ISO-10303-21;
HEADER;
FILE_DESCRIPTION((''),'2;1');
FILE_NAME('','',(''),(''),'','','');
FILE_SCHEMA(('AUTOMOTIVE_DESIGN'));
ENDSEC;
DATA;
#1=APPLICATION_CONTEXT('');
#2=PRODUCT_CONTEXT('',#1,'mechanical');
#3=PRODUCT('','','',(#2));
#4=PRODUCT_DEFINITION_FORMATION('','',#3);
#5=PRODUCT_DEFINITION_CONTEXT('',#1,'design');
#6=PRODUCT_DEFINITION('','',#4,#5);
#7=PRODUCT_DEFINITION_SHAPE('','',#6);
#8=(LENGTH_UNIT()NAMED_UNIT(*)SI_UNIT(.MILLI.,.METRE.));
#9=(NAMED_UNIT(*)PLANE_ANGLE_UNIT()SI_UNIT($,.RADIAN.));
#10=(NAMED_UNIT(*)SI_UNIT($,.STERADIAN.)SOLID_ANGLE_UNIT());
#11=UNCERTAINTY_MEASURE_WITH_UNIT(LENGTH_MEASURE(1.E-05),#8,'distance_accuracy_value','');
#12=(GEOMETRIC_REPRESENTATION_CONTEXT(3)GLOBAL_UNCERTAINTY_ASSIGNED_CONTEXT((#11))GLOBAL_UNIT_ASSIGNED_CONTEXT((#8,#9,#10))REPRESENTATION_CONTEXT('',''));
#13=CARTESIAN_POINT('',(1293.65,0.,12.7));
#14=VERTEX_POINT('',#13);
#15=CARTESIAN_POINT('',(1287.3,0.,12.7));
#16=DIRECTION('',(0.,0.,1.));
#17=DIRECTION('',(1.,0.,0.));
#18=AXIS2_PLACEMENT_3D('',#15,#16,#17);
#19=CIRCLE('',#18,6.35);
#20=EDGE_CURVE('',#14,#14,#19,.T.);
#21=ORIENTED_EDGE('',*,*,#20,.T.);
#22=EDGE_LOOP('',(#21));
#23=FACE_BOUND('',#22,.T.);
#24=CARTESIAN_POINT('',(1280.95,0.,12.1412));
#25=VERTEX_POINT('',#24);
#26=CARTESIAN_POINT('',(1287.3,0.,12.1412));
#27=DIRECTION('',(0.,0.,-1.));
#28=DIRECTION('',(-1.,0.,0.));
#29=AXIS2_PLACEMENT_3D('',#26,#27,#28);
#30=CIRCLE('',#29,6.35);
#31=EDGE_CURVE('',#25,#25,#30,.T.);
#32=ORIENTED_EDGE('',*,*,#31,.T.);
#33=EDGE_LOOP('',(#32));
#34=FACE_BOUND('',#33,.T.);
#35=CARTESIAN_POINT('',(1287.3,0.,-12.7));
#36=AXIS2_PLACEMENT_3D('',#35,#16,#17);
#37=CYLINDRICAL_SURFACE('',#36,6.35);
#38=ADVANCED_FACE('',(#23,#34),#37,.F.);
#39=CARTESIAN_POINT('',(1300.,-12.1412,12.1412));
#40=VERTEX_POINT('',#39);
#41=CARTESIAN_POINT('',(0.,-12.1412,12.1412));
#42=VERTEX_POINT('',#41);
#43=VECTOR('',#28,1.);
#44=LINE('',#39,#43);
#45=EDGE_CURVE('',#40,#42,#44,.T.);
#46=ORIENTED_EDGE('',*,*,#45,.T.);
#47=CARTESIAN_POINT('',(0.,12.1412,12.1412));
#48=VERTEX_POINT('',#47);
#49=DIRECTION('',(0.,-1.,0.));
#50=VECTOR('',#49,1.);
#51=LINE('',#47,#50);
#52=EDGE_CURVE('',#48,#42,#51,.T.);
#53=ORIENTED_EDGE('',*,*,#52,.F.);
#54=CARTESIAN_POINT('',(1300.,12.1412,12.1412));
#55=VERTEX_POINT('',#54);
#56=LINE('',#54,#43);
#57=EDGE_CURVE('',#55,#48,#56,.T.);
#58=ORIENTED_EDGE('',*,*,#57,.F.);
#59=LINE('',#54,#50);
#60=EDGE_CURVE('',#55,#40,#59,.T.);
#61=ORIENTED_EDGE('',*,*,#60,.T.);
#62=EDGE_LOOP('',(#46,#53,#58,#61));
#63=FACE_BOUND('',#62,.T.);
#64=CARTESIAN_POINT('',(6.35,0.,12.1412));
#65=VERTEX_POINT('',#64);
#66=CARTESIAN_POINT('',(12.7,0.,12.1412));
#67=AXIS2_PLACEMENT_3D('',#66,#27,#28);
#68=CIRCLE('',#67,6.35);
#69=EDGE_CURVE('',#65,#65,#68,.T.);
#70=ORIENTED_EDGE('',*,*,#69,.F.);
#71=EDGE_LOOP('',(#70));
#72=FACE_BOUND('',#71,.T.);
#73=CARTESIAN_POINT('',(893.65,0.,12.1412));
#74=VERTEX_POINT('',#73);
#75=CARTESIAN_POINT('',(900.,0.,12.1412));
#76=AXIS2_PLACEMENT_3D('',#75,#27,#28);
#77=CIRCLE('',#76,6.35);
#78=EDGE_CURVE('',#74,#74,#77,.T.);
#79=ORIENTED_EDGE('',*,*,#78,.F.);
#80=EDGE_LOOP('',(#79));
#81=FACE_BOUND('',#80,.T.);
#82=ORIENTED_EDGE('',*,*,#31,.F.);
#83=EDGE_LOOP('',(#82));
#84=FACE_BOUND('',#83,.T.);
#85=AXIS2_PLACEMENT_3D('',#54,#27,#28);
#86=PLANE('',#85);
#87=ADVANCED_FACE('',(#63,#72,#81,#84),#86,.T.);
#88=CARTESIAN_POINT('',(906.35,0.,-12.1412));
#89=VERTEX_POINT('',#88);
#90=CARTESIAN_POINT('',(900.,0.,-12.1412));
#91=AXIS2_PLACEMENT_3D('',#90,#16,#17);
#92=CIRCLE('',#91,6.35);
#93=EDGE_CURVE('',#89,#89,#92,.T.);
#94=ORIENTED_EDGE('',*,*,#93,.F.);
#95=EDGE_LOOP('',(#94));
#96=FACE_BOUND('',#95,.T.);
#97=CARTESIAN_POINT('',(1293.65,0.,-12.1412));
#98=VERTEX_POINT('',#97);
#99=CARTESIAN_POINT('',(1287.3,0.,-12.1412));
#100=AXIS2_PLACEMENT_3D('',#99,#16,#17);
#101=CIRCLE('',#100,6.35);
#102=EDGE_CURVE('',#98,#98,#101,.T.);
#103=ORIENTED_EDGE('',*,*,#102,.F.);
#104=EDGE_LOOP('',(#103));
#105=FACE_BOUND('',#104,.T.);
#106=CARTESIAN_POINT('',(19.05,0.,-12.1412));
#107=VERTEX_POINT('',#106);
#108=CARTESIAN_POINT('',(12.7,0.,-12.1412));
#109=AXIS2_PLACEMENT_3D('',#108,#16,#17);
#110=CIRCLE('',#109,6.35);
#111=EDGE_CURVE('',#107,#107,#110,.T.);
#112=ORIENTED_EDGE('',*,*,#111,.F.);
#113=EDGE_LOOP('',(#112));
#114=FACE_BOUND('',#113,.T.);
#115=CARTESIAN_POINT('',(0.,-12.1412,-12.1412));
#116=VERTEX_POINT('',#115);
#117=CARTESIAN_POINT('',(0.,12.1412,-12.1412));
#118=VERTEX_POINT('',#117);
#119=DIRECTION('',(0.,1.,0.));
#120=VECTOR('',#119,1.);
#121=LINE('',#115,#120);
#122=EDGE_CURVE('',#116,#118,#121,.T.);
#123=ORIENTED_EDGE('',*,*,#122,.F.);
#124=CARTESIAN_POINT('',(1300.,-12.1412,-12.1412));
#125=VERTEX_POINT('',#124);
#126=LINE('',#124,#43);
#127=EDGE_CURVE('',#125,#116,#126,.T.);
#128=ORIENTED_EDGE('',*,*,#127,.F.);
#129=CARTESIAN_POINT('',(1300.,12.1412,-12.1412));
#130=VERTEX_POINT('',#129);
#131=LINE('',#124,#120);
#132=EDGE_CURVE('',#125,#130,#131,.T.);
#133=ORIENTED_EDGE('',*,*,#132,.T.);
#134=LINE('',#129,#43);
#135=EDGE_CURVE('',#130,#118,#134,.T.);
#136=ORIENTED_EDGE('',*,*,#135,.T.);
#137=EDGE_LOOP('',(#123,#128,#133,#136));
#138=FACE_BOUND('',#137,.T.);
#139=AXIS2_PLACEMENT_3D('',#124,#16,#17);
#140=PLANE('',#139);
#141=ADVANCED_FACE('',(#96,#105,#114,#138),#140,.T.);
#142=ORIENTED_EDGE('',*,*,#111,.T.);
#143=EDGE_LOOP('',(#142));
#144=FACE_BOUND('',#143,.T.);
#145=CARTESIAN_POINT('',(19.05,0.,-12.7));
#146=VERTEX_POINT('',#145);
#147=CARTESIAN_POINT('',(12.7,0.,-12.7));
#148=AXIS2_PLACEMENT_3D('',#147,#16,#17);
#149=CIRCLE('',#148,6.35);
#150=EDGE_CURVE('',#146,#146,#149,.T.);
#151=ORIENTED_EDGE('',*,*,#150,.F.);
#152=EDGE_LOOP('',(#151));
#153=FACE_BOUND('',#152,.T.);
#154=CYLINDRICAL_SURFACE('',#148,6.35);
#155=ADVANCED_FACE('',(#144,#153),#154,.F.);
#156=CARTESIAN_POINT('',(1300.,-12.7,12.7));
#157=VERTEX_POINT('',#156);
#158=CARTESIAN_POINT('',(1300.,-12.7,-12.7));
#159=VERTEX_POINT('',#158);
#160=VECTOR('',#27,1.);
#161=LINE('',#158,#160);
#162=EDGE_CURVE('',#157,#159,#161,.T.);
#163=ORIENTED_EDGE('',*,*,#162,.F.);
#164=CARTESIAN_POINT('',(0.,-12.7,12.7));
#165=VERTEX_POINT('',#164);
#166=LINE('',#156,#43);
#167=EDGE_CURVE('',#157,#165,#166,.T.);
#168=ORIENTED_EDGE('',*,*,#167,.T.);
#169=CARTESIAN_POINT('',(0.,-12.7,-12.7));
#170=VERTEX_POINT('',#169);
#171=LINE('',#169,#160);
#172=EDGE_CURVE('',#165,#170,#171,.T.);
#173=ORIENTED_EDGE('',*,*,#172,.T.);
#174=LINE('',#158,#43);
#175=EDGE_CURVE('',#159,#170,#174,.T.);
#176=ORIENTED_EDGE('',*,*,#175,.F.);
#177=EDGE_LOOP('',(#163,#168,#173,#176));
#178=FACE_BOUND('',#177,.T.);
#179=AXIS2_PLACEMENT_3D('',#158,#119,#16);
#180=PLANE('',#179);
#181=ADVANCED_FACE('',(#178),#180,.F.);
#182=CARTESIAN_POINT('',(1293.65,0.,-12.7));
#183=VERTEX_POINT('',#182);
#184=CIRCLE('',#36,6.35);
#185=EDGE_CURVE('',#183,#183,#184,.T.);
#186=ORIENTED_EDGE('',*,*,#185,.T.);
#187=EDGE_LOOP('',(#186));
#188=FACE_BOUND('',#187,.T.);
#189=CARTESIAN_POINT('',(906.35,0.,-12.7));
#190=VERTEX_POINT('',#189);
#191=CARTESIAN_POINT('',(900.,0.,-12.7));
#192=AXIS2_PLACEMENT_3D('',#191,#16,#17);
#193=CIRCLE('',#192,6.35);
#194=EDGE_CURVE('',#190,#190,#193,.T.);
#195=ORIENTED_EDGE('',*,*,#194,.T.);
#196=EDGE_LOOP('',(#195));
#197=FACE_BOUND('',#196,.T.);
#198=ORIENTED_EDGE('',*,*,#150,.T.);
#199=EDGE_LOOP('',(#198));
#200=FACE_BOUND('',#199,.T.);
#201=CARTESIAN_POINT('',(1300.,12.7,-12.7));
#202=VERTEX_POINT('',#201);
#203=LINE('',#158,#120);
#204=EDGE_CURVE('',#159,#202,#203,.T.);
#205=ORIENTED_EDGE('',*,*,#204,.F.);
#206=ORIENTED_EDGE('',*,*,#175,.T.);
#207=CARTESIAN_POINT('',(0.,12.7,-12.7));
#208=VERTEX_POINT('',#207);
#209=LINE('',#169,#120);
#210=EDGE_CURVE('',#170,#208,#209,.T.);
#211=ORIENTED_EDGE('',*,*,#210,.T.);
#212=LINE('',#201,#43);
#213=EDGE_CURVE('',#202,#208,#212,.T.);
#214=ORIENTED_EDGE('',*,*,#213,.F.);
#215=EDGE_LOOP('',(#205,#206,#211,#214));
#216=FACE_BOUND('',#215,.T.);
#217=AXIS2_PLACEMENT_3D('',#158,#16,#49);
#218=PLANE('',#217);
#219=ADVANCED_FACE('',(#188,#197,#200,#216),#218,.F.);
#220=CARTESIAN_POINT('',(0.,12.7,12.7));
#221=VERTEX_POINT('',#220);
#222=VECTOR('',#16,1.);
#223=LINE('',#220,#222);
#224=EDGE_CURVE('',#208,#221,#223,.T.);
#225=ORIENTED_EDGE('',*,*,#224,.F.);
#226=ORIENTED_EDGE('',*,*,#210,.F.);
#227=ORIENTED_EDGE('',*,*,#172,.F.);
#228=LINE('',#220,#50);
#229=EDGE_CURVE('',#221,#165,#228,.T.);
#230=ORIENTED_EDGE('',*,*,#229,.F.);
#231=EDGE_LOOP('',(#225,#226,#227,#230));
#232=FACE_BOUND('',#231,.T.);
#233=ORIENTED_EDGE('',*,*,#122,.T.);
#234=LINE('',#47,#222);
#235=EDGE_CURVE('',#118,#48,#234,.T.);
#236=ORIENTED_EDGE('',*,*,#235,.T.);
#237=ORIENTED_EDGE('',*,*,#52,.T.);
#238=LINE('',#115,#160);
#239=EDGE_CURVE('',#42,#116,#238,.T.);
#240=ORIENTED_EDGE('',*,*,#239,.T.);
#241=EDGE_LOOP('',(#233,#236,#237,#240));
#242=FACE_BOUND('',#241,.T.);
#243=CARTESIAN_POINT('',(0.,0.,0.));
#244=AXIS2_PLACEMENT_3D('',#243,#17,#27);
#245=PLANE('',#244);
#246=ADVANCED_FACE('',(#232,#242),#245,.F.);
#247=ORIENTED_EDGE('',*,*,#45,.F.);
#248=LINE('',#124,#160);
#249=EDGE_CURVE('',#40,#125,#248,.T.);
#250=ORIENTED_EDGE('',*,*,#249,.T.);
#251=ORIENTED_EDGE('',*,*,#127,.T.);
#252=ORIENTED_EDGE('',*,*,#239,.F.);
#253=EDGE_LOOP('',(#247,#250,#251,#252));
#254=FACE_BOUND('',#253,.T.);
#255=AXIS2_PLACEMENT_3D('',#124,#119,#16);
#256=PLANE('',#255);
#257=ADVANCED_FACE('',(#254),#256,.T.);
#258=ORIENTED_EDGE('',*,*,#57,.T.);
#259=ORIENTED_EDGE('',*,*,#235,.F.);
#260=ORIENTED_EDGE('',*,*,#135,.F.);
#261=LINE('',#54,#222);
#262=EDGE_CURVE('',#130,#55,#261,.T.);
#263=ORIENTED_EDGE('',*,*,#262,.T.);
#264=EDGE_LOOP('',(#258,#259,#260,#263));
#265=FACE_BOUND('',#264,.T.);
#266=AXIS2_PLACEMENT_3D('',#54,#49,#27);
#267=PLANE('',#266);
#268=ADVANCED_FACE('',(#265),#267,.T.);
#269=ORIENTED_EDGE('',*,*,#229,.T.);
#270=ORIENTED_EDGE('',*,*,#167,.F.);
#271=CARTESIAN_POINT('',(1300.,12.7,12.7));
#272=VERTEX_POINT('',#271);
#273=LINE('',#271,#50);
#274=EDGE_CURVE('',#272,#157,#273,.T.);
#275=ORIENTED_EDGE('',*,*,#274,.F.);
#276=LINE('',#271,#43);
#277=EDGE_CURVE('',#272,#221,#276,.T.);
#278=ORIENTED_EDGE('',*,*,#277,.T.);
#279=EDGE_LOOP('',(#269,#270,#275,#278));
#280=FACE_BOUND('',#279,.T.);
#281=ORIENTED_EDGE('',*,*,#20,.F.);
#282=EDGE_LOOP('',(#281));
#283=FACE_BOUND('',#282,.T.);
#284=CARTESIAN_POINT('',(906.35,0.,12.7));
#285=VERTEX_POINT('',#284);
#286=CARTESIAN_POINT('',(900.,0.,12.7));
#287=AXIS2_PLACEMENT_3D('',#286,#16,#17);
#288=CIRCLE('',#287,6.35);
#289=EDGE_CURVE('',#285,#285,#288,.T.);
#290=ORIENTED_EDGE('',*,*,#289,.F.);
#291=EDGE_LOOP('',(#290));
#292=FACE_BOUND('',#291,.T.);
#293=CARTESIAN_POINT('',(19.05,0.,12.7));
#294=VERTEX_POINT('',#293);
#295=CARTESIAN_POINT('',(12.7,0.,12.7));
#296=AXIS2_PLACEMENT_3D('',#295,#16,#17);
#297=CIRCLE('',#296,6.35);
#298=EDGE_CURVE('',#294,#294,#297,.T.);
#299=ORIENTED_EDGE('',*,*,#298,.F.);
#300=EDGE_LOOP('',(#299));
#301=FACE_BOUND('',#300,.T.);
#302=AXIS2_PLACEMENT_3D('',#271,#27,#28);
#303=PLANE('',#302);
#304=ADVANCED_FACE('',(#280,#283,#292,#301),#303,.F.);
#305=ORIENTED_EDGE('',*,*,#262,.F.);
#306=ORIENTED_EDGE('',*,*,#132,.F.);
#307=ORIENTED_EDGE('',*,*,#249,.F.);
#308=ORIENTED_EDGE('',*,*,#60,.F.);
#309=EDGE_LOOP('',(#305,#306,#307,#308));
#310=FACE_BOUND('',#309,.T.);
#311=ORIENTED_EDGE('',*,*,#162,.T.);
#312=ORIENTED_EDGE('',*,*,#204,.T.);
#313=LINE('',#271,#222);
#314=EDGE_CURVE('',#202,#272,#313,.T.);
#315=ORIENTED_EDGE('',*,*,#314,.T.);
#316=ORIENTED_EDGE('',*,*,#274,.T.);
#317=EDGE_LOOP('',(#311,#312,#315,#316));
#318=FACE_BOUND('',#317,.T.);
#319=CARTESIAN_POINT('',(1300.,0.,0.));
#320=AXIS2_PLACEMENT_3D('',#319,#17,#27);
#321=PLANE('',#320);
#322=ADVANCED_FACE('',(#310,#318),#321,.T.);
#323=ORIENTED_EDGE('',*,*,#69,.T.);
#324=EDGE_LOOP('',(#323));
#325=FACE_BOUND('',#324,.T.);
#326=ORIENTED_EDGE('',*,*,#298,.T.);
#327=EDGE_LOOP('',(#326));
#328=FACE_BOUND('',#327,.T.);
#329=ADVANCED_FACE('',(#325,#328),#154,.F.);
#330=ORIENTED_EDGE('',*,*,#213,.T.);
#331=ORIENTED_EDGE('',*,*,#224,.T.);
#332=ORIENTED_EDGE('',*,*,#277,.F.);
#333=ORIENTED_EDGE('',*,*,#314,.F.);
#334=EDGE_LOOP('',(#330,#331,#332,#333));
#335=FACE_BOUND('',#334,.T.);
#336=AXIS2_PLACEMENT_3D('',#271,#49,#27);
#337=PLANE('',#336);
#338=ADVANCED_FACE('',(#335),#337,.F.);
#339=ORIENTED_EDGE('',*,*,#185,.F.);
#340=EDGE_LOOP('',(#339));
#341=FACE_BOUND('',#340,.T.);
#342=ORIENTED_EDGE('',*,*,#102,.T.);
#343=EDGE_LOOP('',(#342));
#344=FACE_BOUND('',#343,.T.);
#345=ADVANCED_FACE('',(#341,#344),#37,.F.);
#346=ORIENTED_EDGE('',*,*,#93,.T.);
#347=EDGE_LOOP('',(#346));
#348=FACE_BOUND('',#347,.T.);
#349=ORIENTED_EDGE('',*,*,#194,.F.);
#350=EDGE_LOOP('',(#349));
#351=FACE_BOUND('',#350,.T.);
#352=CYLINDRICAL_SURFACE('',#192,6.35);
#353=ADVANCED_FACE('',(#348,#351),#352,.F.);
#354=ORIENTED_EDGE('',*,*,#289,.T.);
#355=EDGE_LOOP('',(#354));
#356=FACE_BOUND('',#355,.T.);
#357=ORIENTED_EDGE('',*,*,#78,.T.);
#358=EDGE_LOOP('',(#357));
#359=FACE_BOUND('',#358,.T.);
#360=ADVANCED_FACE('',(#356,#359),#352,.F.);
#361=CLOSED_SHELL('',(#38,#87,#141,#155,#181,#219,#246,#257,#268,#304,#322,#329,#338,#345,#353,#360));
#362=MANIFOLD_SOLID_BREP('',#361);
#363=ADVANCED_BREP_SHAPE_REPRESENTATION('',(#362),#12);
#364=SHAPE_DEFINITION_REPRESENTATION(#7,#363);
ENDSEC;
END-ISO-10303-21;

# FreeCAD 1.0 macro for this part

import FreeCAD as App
import Part
import Sketcher
Q = App.Units.Quantity


def add_polygon(sketch, points):
    """Adds a closed chain of lines whose ends are joined by coincident constraints."""
    first, n = sketch.GeometryCount, len(points)
    for a, b in zip(points, points[1:] + points[:1]):
        sketch.addGeometry(Part.LineSegment(App.Vector(*a, 0), App.Vector(*b, 0)), False)
    for i in range(n):
        sketch.addConstraint(Sketcher.Constraint("Coincident", first + i, 2, first + (i + 1) % n, 1))

doc = App.newDocument("Part")
body = doc.addObject("PartDesign::Body", "Body")

# Sketch on YZ plane
sketch1 = doc.addObject("Sketcher::SketchObject", "Sketch")
body.addObject(sketch1)
sketch1.AttachmentSupport = (doc.YZ_Plane, [""])
sketch1.MapMode = "FlatFace"
add_polygon(sketch1, [(-12.7, 12.7), (-12.7, -12.7), (12.7, -12.7), (12.7, 12.7)])  # lines 0-3
add_polygon(sketch1, [(12.1412, -12.1412), (-12.1412, -12.1412), (-12.1412, 12.1412), (12.1412, 12.1412)])  # lines 4-7
sketch1.addConstraint([
    Sketcher.Constraint("Vertical", 0),
    Sketcher.Constraint("Horizontal", 1),
    Sketcher.Constraint("Vertical", 2),
    Sketcher.Constraint("Horizontal", 3),
    Sketcher.Constraint("Horizontal", 4),
    Sketcher.Constraint("Vertical", 5),
    Sketcher.Constraint("Horizontal", 6),
    Sketcher.Constraint("Vertical", 7),
    Sketcher.Constraint("Symmetric", 0, 2, 2, 2, -1, 1),
    Sketcher.Constraint("Symmetric", 4, 2, 6, 2, -1, 1),
    Sketcher.Constraint("Equal", 3, 0),
    Sketcher.Constraint("Equal", 6, 5),
    Sketcher.Constraint("DistanceX", 1, 1, 1, 2, Q("1 in")),
    Sketcher.Constraint("DistanceX", 4, 2, 4, 1, Q("0.956 in")),
])
pad1 = doc.addObject("PartDesign::Pad", "Pad")
body.addObject(pad1)
pad1.Profile = sketch1
pad1.Length = 1300

# Sketch on XY plane
sketch2 = doc.addObject("Sketcher::SketchObject", "Sketch001")
body.addObject(sketch2)
sketch2.AttachmentSupport = (doc.XY_Plane, [""])
sketch2.MapMode = "FlatFace"
sketch2.AttachmentOffset = App.Placement(App.Vector(0, 0, 0.5 * 25.4), App.Rotation())
sketch2.addGeometry([
    Part.Circle(App.Vector(1287.3, 0, 0), App.Vector(0, 0, 1), 6.35),
    Part.Circle(App.Vector(900, 0, 0), App.Vector(0, 0, 1), 6.35),
    Part.Circle(App.Vector(12.7, 0, 0), App.Vector(0, 0, 1), 6.35),
], False)
sketch2.addConstraint([
    Sketcher.Constraint("Equal", 0, 1),
    Sketcher.Constraint("Equal", 1, 2),
    Sketcher.Constraint("PointOnObject", 0, 3, -1),
    Sketcher.Constraint("PointOnObject", 1, 3, -1),
    Sketcher.Constraint("PointOnObject", 2, 3, -1),
    Sketcher.Constraint("Diameter", 0, Q("0.5 in")),
    Sketcher.Constraint("DistanceX", -1, 1, 2, 3, Q("0.5 in")),
    Sketcher.Constraint("DistanceX", -1, 1, 0, 3, 1287.3),
    Sketcher.Constraint("DistanceX", -1, 1, 1, 3, 900.0),
])
pocket1 = doc.addObject("PartDesign::Pocket", "Pocket")
body.addObject(pocket1)
pocket1.Profile = sketch2
pocket1.Type = "ThroughAll"

doc.recompute()
